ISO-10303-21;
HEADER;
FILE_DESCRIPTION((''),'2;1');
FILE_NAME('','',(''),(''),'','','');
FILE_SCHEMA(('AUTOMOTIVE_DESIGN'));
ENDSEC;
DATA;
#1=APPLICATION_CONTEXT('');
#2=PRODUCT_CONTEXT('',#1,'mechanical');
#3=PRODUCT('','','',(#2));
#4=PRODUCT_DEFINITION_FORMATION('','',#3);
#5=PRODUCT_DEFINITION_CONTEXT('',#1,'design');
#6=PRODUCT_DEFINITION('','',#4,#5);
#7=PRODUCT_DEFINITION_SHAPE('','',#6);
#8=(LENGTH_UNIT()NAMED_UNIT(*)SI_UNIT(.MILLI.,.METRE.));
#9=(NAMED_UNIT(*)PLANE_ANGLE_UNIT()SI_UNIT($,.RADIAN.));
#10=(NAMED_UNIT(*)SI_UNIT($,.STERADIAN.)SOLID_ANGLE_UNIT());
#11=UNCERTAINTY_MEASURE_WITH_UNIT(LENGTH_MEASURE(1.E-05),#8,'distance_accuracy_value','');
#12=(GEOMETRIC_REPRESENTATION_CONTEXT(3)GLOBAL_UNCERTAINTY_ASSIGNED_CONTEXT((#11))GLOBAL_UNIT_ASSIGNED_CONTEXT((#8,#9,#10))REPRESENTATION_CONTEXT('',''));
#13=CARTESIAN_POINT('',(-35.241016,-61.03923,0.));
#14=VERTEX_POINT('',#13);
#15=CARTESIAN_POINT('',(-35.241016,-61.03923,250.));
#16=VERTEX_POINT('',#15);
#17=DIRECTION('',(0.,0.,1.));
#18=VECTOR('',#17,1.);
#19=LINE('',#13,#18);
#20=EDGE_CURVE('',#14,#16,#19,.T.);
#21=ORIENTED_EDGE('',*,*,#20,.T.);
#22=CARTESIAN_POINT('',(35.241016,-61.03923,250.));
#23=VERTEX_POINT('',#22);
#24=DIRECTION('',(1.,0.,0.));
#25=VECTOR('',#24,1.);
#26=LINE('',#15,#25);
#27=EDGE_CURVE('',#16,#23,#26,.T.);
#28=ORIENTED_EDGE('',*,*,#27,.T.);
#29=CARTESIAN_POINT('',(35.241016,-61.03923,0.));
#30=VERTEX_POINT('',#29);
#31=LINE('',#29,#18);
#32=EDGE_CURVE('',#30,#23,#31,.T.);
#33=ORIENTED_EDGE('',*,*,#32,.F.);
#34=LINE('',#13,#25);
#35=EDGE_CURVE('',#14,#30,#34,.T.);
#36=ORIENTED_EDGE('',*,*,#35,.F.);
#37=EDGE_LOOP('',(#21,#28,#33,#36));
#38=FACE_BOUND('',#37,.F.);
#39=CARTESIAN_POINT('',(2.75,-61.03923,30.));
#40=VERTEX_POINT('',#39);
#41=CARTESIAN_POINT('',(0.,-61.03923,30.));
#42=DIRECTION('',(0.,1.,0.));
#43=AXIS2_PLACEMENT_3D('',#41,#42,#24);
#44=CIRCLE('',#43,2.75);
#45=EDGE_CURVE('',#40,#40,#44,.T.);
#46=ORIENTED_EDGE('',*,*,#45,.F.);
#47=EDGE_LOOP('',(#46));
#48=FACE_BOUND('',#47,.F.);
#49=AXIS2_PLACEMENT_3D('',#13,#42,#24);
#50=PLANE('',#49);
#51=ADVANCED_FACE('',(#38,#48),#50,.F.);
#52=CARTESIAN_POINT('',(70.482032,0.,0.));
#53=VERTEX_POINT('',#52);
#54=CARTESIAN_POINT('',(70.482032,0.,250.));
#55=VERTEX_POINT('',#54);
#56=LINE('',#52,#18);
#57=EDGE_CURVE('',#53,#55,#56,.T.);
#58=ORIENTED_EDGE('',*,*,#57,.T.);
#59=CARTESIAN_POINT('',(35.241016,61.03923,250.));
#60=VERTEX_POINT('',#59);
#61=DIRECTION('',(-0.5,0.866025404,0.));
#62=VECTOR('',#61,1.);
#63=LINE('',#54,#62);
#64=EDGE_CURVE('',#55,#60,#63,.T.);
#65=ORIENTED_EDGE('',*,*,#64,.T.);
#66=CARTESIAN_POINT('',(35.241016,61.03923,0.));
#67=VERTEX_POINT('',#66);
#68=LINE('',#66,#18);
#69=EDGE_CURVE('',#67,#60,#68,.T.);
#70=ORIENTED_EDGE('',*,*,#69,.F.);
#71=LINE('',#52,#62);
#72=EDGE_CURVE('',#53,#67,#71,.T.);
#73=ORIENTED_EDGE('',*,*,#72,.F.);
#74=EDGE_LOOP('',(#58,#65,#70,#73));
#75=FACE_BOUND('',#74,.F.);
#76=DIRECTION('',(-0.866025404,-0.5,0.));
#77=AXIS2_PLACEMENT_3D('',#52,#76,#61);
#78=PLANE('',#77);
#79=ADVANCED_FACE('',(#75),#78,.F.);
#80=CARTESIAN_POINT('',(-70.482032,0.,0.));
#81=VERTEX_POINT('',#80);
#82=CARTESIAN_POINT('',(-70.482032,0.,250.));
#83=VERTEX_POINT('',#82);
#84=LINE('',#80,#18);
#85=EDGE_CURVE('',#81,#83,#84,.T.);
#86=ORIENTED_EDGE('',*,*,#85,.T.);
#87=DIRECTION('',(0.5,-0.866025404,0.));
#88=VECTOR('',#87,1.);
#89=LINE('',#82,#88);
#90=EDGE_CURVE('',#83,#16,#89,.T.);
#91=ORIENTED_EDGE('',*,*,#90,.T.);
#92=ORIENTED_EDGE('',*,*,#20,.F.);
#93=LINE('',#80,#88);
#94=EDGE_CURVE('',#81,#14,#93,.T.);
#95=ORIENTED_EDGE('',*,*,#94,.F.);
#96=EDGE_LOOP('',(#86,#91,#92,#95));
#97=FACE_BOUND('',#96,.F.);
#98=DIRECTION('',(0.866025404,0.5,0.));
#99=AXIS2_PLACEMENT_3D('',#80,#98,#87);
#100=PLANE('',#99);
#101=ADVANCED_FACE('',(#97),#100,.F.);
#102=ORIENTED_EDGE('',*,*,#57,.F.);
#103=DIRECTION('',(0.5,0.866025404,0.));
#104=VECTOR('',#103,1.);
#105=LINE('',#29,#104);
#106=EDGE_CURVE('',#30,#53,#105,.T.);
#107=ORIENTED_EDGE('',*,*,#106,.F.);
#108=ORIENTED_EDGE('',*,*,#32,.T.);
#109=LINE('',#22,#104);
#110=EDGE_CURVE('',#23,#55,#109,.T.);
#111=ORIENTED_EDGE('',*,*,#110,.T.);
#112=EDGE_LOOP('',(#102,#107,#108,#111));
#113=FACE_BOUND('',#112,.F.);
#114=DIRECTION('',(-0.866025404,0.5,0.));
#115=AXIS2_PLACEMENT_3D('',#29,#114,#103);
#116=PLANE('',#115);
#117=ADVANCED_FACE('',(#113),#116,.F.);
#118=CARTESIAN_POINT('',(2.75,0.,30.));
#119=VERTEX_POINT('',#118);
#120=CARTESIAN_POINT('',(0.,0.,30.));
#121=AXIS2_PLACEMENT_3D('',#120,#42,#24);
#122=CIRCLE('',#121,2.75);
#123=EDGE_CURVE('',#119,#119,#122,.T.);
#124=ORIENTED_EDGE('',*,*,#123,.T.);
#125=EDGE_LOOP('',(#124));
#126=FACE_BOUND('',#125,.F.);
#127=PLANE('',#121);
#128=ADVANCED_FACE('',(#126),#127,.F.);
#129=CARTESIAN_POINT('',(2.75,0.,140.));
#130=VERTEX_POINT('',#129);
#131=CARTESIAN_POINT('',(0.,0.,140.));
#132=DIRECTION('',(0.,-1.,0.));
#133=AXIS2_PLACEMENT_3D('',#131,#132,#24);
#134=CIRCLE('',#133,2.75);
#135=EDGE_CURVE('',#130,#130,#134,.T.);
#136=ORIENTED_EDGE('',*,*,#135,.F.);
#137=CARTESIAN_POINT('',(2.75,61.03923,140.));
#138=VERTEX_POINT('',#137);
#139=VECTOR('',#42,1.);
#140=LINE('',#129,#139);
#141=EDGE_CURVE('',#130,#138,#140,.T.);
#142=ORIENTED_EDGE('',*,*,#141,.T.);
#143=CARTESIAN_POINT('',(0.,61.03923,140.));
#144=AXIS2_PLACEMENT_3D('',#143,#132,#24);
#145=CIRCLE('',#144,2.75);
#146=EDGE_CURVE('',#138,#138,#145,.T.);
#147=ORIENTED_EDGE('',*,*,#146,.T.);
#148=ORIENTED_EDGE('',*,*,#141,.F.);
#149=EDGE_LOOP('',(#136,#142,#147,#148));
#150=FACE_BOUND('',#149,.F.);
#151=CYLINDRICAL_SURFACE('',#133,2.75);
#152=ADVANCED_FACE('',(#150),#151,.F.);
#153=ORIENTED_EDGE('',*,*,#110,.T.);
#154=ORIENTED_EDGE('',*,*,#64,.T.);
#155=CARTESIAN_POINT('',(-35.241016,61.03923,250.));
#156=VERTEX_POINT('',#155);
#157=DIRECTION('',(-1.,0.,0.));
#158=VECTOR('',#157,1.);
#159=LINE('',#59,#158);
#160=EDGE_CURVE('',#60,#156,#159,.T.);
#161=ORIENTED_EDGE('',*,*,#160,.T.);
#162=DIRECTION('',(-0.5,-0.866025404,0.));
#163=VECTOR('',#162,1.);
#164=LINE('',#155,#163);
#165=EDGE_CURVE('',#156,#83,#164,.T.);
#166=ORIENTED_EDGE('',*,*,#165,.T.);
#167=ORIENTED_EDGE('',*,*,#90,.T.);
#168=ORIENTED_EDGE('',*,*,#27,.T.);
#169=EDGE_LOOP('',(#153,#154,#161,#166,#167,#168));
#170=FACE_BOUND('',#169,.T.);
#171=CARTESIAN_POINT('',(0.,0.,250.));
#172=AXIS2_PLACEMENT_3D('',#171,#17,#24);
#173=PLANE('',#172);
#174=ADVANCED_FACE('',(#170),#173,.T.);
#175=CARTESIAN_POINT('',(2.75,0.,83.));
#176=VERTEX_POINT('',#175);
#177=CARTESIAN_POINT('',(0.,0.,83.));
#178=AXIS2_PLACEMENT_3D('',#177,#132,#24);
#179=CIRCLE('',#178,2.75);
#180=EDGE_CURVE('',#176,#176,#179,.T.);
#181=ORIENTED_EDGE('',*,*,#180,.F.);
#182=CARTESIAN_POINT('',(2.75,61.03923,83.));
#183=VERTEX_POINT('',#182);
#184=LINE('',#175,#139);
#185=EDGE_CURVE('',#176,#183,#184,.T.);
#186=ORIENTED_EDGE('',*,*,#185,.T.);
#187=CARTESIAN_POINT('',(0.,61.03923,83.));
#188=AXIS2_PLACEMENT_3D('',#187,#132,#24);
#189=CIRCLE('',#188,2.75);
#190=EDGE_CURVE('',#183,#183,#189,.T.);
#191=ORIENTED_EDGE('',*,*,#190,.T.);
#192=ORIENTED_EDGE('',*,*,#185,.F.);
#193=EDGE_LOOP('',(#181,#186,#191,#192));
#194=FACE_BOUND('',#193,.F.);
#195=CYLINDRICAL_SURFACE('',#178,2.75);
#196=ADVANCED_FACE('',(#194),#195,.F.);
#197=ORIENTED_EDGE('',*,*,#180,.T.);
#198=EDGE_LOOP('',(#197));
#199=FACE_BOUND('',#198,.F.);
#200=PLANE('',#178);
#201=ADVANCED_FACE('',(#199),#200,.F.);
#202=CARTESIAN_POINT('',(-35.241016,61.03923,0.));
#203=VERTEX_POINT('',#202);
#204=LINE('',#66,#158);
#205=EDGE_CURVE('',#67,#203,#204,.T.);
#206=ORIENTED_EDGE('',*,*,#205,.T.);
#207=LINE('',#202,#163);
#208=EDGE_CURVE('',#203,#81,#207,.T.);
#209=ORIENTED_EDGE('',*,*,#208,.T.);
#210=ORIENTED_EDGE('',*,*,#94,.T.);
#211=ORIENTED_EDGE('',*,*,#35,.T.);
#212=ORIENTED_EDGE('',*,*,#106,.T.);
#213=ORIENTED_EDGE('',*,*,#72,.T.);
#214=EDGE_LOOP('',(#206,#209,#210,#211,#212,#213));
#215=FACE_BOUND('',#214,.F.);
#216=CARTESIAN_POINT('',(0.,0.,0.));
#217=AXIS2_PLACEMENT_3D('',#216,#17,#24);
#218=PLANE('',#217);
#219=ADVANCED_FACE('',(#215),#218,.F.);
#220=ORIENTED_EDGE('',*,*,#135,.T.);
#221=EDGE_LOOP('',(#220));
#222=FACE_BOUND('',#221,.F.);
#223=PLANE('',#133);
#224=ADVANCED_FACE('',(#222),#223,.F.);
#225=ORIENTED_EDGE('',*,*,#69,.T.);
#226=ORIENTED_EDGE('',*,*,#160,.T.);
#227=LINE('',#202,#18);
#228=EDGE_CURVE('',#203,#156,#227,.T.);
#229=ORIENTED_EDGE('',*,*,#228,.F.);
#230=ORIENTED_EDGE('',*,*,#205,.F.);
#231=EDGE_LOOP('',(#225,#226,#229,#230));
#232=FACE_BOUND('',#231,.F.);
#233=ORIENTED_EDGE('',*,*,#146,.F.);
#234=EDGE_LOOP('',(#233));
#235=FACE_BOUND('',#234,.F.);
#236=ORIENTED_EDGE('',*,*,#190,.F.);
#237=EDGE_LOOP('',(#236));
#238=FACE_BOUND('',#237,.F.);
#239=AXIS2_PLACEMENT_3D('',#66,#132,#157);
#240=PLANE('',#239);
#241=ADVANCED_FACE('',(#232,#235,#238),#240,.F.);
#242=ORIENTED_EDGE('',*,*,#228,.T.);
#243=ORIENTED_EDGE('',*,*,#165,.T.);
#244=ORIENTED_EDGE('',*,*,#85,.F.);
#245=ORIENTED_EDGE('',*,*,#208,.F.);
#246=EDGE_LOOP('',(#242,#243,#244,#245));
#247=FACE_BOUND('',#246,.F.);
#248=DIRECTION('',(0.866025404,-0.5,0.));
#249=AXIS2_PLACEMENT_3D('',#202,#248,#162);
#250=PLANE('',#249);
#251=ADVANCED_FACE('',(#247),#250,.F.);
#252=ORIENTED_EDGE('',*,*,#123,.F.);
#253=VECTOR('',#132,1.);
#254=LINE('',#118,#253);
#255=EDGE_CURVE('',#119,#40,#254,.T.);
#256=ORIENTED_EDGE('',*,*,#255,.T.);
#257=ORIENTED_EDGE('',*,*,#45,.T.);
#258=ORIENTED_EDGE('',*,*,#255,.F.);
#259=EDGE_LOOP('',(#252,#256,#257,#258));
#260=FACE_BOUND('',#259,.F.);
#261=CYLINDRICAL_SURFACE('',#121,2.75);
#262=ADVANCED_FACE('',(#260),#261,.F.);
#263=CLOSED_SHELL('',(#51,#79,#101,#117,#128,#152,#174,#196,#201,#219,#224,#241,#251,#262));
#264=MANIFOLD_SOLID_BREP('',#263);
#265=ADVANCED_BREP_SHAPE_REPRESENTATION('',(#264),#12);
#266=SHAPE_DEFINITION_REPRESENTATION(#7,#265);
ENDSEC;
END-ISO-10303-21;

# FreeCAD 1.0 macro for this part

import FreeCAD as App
import Part
import Sketcher
Q = App.Units.Quantity

doc = App.newDocument("Part")
params = doc.addObject("Spreadsheet::Sheet", "Params")
for row, (alias, value) in enumerate([
    ("pad1_length", "250 mm"),
    ("sketch2_diameter", "5.5 mm"),
    ("sketch3_diameter", "5.5 mm"),
], start=1):
    params.set(f"A{row}", alias)
    params.set(f"B{row}", "=" + value)
    params.setAlias(f"B{row}", alias)

body = doc.addObject("PartDesign::Body", "Body")

# Sketch on XY plane
sketch1 = body.newObject("Sketcher::SketchObject", "Sketch")
sketch1.AttachmentSupport = (doc.getObject("XY_Plane"), [""])
sketch1.MapMode = "FlatFace"
sketch1.addGeometry([
    Part.LineSegment(App.Vector(35.241016, -61.03923, 0), App.Vector(70.482032, 0, 0)),  # 0
    Part.LineSegment(App.Vector(70.482032, 0, 0), App.Vector(35.241016, 61.03923, 0)),  # 1
    Part.LineSegment(App.Vector(35.241016, 61.03923, 0), App.Vector(-35.241016, 61.03923, 0)),  # 2
    Part.LineSegment(App.Vector(-35.241016, 61.03923, 0), App.Vector(-70.482032, 0, 0)),  # 3
    Part.LineSegment(App.Vector(-70.482032, 0, 0), App.Vector(-35.241016, -61.03923, 0)),  # 4
    Part.LineSegment(App.Vector(-35.241016, -61.03923, 0), App.Vector(35.241016, -61.03923, 0)),  # 5
], False)
sketch1.addConstraint([
    Sketcher.Constraint("Coincident", 0, 2, 1, 1),
    Sketcher.Constraint("Coincident", 1, 2, 2, 1),
    Sketcher.Constraint("Coincident", 2, 2, 3, 1),
    Sketcher.Constraint("Coincident", 3, 2, 4, 1),
    Sketcher.Constraint("Coincident", 4, 2, 5, 1),
    Sketcher.Constraint("Coincident", 5, 2, 0, 1),
    Sketcher.Constraint("Horizontal", 2),
    Sketcher.Constraint("Horizontal", 5),
    Sketcher.Constraint("Symmetric", 0, 2, 3, 2, -1, 1),
    Sketcher.Constraint("Symmetric", 1, 2, 4, 2, -1, 1),
    Sketcher.Constraint("PointOnObject", 0, 2, -1),
    Sketcher.Constraint("Parallel", 0, 3),
    Sketcher.Constraint("Vertical", 2, 2, 4, 2),
    Sketcher.Constraint("Angle", 0, Q("60 deg")),
    Sketcher.Constraint("DistanceX", 2, 2, 2, 1, Q("70.482032 mm")),
    Sketcher.Constraint("DistanceY", -1, 1, 1, 2, Q("61.03923 mm")),
])
pad1 = body.newObject("PartDesign::Pad", "Pad")
pad1.Profile = sketch1
pad1.setExpression("Length", "Params.pad1_length")

# Sketch on XZ plane
sketch2 = body.newObject("Sketcher::SketchObject", "Sketch001")
sketch2.AttachmentSupport = (doc.getObject("XZ_Plane"), [""])
sketch2.MapMode = "FlatFace"
sketch2.addGeometry([
    Part.Circle(App.Vector(0, 83, 0), App.Vector(0, 0, 1), 2.75),
    Part.Circle(App.Vector(0, 140, 0), App.Vector(0, 0, 1), 2.75),
], False)
sketch2.addConstraint([
    Sketcher.Constraint("Equal", 0, 1),
    Sketcher.Constraint("PointOnObject", 0, 3, -2),
    Sketcher.Constraint("PointOnObject", 1, 3, -2),
    Sketcher.Constraint("Diameter", 0, Q("5.5 mm")),
    Sketcher.Constraint("DistanceY", -1, 1, 0, 3, Q("83 mm")),
    Sketcher.Constraint("DistanceY", -1, 1, 1, 3, Q("140 mm")),
])
sketch2.setExpression("Constraints[3]", "Params.sketch2_diameter")
pocket1 = body.newObject("PartDesign::Pocket", "Pocket")
pocket1.Profile = sketch2
pocket1.Type = "ThroughAll"

# Sketch on XZ plane
sketch3 = body.newObject("Sketcher::SketchObject", "Sketch002")
sketch3.AttachmentSupport = (doc.getObject("XZ_Plane"), [""])
sketch3.MapMode = "FlatFace"
sketch3.addGeometry(Part.Circle(App.Vector(0, 30, 0), App.Vector(0, 0, 1), 2.75), False)
sketch3.addConstraint([
    Sketcher.Constraint("PointOnObject", 0, 3, -2),
    Sketcher.Constraint("Diameter", 0, Q("5.5 mm")),
    Sketcher.Constraint("DistanceY", -1, 1, 0, 3, Q("30 mm")),
])
sketch3.setExpression("Constraints[1]", "Params.sketch3_diameter")
pocket2 = body.newObject("PartDesign::Pocket", "Pocket001")
pocket2.Profile = sketch3
pocket2.Type = "ThroughAll"
pocket2.Reversed = True

doc.recompute()
